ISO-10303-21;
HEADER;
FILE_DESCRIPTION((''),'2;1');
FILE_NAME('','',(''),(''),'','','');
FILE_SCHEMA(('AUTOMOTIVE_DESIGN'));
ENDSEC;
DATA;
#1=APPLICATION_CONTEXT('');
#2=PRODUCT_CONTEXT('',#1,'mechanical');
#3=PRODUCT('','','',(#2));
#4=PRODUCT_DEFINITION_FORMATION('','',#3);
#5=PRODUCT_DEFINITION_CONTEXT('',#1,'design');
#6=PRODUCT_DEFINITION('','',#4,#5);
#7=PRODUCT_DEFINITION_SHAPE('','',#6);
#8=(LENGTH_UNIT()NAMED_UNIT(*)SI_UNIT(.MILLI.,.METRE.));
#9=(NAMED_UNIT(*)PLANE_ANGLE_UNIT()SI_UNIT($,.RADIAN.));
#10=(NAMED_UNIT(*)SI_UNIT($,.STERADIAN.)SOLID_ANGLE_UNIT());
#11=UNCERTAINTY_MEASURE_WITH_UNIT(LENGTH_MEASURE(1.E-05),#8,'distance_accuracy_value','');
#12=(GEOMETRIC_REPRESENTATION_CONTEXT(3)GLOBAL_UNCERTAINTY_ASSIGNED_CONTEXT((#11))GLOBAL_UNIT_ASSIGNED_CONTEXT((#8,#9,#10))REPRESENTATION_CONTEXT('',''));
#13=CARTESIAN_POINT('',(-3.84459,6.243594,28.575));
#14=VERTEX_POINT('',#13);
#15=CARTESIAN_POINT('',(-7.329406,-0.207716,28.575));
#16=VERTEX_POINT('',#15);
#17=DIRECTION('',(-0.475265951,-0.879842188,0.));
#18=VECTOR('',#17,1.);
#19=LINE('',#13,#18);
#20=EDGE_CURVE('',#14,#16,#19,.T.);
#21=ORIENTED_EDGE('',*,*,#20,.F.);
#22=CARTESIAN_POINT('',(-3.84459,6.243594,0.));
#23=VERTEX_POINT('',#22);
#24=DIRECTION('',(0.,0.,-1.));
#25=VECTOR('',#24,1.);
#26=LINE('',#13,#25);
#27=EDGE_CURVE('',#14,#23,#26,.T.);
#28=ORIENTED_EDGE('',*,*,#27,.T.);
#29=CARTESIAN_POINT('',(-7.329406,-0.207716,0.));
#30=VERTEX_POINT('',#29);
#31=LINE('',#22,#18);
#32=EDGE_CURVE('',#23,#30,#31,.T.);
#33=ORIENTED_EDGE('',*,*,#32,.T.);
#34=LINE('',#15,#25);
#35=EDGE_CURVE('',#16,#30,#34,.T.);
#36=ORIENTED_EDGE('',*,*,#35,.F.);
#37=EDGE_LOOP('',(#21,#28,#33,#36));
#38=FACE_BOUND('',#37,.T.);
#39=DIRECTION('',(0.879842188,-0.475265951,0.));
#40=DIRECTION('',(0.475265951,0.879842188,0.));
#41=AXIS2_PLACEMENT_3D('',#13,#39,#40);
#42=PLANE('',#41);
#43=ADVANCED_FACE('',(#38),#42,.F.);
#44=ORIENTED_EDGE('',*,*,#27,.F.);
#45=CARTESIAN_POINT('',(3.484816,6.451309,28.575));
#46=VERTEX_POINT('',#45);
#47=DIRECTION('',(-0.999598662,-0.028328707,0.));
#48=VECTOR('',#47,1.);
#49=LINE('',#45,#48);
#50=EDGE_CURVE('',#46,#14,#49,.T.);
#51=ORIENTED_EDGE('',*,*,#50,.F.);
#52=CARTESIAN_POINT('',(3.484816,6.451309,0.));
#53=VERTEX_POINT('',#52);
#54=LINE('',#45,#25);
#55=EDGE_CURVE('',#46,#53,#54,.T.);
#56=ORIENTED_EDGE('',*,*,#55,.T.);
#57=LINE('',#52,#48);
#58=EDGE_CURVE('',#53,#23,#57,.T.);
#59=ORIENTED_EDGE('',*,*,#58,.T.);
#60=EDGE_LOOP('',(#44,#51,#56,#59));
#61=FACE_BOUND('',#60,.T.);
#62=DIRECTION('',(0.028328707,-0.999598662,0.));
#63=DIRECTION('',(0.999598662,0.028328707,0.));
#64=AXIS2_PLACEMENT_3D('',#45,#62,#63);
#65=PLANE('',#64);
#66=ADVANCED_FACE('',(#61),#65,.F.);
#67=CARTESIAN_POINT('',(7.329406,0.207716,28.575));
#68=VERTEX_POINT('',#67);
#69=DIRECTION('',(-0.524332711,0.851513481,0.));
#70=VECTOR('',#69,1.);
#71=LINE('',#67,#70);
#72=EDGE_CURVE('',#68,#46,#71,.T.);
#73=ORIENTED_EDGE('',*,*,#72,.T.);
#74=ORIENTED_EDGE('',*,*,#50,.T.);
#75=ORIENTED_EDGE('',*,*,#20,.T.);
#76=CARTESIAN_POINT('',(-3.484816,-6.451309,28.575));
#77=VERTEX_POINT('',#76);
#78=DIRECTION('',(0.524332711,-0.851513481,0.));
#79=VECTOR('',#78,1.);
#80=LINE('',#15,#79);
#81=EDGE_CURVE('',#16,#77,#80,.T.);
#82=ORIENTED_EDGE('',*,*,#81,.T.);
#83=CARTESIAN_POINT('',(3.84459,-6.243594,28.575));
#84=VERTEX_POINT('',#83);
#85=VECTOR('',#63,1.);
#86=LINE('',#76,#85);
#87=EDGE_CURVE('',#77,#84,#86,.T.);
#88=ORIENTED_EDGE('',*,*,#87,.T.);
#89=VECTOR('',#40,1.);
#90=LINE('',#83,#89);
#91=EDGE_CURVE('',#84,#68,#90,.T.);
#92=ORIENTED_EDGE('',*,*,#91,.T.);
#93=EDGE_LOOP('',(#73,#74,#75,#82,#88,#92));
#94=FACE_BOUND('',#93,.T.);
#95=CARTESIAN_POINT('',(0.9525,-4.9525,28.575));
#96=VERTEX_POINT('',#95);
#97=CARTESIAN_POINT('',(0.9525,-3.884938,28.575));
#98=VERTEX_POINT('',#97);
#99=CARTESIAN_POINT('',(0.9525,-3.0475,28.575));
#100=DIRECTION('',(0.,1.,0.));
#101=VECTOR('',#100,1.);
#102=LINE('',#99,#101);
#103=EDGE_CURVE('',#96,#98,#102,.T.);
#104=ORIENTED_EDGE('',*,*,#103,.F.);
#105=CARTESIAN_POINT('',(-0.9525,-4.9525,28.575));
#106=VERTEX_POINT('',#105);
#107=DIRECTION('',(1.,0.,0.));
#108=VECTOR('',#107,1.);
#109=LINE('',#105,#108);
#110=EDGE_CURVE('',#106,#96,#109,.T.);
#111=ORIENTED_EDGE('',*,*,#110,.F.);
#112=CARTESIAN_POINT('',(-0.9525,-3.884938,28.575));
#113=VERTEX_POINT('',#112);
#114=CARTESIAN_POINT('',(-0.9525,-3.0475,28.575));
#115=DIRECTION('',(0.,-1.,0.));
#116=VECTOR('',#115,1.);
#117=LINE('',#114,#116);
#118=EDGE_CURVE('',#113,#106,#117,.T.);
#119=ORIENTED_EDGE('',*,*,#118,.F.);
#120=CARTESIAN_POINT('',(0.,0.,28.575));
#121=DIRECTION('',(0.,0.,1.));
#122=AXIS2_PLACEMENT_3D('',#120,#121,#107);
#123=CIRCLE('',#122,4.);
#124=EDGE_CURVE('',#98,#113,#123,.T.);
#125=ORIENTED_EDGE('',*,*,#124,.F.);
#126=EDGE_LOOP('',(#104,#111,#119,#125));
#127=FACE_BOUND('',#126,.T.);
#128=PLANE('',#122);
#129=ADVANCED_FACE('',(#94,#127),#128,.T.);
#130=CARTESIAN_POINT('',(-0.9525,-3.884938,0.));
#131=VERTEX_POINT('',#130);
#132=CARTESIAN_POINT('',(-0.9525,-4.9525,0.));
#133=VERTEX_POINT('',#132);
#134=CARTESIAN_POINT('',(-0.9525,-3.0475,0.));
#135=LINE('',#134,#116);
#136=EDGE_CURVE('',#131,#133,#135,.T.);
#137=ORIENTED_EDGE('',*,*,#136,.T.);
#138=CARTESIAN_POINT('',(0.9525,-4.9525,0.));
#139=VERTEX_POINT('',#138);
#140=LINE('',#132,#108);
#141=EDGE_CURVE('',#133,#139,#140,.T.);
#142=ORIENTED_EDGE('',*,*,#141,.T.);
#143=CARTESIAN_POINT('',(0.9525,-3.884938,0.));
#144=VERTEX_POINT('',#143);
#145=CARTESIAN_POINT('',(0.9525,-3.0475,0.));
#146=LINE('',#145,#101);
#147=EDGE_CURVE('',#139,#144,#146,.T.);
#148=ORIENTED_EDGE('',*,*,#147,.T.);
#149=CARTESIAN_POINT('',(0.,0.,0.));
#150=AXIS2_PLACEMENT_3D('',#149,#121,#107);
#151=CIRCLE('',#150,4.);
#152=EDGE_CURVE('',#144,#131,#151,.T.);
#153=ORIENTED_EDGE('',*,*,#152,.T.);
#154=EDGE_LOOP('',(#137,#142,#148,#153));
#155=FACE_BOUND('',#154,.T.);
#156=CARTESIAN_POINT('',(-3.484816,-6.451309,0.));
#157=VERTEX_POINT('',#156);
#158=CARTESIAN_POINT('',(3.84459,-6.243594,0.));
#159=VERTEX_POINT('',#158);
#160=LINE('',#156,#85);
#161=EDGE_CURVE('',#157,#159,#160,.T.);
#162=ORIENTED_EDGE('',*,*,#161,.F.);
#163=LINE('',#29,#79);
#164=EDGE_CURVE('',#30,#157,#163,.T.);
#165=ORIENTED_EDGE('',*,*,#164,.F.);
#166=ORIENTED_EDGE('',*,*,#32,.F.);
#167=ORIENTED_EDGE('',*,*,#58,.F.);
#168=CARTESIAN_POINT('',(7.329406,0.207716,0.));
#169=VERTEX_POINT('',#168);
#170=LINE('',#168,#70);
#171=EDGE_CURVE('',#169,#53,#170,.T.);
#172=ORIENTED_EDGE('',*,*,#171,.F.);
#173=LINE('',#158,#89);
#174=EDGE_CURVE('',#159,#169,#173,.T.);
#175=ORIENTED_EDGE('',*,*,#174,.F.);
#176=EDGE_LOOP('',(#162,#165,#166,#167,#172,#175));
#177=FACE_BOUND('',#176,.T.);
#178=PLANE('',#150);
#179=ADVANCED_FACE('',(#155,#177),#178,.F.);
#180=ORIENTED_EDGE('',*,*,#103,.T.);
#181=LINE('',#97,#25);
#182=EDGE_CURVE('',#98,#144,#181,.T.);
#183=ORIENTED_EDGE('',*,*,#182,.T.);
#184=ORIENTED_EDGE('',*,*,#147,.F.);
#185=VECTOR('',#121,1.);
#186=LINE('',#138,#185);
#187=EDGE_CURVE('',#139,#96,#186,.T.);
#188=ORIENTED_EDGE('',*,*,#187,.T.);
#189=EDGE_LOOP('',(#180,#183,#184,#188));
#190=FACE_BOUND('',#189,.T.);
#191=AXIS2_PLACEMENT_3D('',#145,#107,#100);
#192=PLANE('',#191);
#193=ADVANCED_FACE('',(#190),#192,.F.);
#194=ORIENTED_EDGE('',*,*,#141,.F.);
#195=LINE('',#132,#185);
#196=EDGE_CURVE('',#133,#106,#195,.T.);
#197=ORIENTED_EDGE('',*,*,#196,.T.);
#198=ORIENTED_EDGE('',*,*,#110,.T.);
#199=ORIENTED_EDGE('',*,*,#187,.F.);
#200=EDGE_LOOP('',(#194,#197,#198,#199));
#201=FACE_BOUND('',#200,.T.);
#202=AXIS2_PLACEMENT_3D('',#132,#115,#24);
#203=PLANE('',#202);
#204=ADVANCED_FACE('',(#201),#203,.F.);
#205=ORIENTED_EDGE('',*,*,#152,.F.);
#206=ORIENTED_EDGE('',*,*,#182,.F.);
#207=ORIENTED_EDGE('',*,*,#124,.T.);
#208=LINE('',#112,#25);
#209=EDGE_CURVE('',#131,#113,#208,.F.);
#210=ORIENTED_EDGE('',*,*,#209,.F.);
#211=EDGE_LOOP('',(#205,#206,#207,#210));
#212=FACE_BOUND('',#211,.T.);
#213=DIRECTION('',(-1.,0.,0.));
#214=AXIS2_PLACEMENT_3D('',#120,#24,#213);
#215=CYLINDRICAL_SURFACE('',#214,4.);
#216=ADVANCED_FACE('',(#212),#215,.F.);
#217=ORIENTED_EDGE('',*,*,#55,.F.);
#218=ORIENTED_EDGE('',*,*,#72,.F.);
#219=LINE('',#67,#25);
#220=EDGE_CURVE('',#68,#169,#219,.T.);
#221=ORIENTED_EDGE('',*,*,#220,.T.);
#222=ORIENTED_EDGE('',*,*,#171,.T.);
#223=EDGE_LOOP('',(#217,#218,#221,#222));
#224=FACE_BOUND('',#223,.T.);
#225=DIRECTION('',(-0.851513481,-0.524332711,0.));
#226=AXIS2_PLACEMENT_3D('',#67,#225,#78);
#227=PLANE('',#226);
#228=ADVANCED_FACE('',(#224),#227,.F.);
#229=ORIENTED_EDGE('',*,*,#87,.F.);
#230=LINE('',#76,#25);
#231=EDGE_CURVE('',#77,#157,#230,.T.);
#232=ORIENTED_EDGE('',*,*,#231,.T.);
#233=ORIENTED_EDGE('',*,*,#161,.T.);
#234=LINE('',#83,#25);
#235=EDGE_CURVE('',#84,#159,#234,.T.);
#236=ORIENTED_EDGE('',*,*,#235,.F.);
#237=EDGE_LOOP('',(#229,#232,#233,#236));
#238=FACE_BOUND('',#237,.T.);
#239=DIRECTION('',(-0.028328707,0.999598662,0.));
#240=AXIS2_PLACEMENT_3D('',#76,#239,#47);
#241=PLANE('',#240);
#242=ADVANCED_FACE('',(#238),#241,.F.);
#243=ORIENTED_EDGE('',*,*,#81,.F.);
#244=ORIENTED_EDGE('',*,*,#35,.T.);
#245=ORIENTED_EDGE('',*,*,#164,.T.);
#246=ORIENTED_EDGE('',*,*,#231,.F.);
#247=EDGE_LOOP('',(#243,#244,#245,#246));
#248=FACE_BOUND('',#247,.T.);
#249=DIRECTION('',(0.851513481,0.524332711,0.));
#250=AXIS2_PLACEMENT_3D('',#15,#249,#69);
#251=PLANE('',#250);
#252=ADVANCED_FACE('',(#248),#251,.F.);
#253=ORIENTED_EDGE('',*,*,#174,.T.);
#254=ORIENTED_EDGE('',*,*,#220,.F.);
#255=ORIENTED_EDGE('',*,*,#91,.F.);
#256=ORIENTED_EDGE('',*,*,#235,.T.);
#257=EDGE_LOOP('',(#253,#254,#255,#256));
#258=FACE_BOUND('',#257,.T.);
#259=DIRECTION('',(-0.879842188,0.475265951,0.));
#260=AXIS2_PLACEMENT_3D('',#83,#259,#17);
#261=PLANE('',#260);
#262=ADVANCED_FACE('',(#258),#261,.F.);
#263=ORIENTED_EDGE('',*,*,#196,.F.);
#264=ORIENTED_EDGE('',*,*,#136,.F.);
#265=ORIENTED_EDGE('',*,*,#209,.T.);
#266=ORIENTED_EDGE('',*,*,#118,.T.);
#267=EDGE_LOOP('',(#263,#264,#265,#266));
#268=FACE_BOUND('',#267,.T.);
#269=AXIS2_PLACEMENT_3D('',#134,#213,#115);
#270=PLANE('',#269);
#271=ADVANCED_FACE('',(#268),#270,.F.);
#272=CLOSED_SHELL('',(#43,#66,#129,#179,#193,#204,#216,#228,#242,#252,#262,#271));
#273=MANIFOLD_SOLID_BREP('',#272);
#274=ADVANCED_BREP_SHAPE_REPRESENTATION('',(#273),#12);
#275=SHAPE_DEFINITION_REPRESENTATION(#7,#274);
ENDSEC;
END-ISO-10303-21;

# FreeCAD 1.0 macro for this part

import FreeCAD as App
import Part
import Sketcher
Q = App.Units.Quantity

doc = App.newDocument("Part")
params = doc.addObject("Spreadsheet::Sheet", "Params")
for row, (alias, value) in enumerate([
    ("pad1_length", "1.125 in"),
    ("sketch2_width", "0.075 in"),
], start=1):
    params.set(f"A{row}", alias)
    params.set(f"B{row}", "=" + value)
    params.setAlias(f"B{row}", alias)

body = doc.addObject("PartDesign::Body", "Body")

# Sketch on XY plane
sketch1 = doc.addObject("Sketcher::SketchObject", "Sketch")
body.addObject(sketch1)
sketch1.AttachmentSupport = (doc.XY_Plane, [""])
sketch1.MapMode = "FlatFace"
sketch1.addGeometry(Part.LineSegment(App.Vector(-7.3, -0.2, 0), App.Vector(-3.5, -6.5, 0)), False)
sketch1.addGeometry(Part.LineSegment(App.Vector(-3.5, -6.5, 0), App.Vector(3.8, -6.2, 0)), False)
sketch1.addGeometry(Part.LineSegment(App.Vector(3.8, -6.2, 0), App.Vector(7.3, 0.2, 0)), False)
sketch1.addGeometry(Part.LineSegment(App.Vector(7.3, 0.2, 0), App.Vector(3.5, 6.5, 0)), False)
sketch1.addGeometry(Part.LineSegment(App.Vector(3.5, 6.5, 0), App.Vector(-3.8, 6.2, 0)), False)
sketch1.addGeometry(Part.LineSegment(App.Vector(-3.8, 6.2, 0), App.Vector(-7.3, -0.2, 0)), False)
sketch1.addGeometry(Part.Circle(App.Vector(0, 0, 0), App.Vector(0, 0, 1), 4), False)
sketch1.addConstraint(Sketcher.Constraint("Coincident", 0, 2, 1, 1))
sketch1.addConstraint(Sketcher.Constraint("Coincident", 1, 2, 2, 1))
sketch1.addConstraint(Sketcher.Constraint("Coincident", 2, 2, 3, 1))
sketch1.addConstraint(Sketcher.Constraint("Coincident", 3, 2, 4, 1))
sketch1.addConstraint(Sketcher.Constraint("Coincident", 4, 2, 5, 1))
sketch1.addConstraint(Sketcher.Constraint("Coincident", 5, 2, 0, 1))
sketch1.addConstraint(Sketcher.Constraint("Coincident", 6, 3, -1, 1))
sketch1.addConstraint(Sketcher.Constraint("Symmetric", 0, 2, 3, 2, -1, 1))
sketch1.addConstraint(Sketcher.Constraint("Symmetric", 1, 2, 4, 2, -1, 1))
sketch1.addConstraint(Sketcher.Constraint("Symmetric", 2, 2, 5, 2, -1, 1))
sketch1.addConstraint(Sketcher.Constraint("Equal", 0, 1))
sketch1.addConstraint(Sketcher.Constraint("Equal", 1, 2))
sketch1.addConstraint(Sketcher.Constraint("Diameter", 6, Q("8 mm")))
sketch1.addConstraint(Sketcher.Constraint("Distance", 0, Q("7.332348 mm")))
sketch1.addConstraint(Sketcher.Constraint("DistanceY", 0, 2, -1, 1, Q("6.451309 mm")))
sketch1.addConstraint(Sketcher.Constraint("DistanceX", -1, 1, 1, 2, Q("3.84459 mm")))
sketch1.addConstraint(Sketcher.Constraint("DistanceY", 1, 2, 2, 2, Q("6.451309 mm")))
pad1 = doc.addObject("PartDesign::Pad", "Pad")
body.addObject(pad1)
pad1.Profile = sketch1
pad1.setExpression("Length", "Params.pad1_length")

# Sketch on XY plane
sketch2 = doc.addObject("Sketcher::SketchObject", "Sketch001")
body.addObject(sketch2)
sketch2.AttachmentSupport = (doc.XY_Plane, [""])
sketch2.MapMode = "FlatFace"
sketch2.AttachmentOffset = App.Placement(App.Vector(0, 0, 1.125 * 25.4), App.Rotation())
sketch2.addGeometry(Part.LineSegment(App.Vector(-1, -3, 0), App.Vector(-1, -5, 0)), False)
sketch2.addGeometry(Part.LineSegment(App.Vector(-1, -5, 0), App.Vector(1, -5, 0)), False)
sketch2.addGeometry(Part.LineSegment(App.Vector(1, -5, 0), App.Vector(1, -3, 0)), False)
sketch2.addGeometry(Part.LineSegment(App.Vector(1, -3, 0), App.Vector(-1, -3, 0)), False)
sketch2.addConstraint(Sketcher.Constraint("Coincident", 0, 2, 1, 1))
sketch2.addConstraint(Sketcher.Constraint("Coincident", 1, 2, 2, 1))
sketch2.addConstraint(Sketcher.Constraint("Coincident", 2, 2, 3, 1))
sketch2.addConstraint(Sketcher.Constraint("Coincident", 3, 2, 0, 1))
sketch2.addConstraint(Sketcher.Constraint("Vertical", 0))
sketch2.addConstraint(Sketcher.Constraint("Horizontal", 1))
sketch2.addConstraint(Sketcher.Constraint("Vertical", 2))
sketch2.addConstraint(Sketcher.Constraint("Horizontal", 3))
sketch2.addConstraint(Sketcher.Constraint("Equal", 3, 0))
sketch2.addConstraint(Sketcher.Constraint("DistanceX", 1, 1, 1, 2, Q("0.075 in")))
sketch2.addConstraint(Sketcher.Constraint("DistanceX", 0, 2, -1, 1, Q("0.0375 in")))
sketch2.addConstraint(Sketcher.Constraint("DistanceY", 0, 2, -1, 1, Q("4.9525 mm")))
sketch2.setExpression("Constraints[9]", "Params.sketch2_width")
pocket1 = doc.addObject("PartDesign::Pocket", "Pocket")
body.addObject(pocket1)
pocket1.Profile = sketch2
pocket1.Type = "ThroughAll"

doc.recompute()
